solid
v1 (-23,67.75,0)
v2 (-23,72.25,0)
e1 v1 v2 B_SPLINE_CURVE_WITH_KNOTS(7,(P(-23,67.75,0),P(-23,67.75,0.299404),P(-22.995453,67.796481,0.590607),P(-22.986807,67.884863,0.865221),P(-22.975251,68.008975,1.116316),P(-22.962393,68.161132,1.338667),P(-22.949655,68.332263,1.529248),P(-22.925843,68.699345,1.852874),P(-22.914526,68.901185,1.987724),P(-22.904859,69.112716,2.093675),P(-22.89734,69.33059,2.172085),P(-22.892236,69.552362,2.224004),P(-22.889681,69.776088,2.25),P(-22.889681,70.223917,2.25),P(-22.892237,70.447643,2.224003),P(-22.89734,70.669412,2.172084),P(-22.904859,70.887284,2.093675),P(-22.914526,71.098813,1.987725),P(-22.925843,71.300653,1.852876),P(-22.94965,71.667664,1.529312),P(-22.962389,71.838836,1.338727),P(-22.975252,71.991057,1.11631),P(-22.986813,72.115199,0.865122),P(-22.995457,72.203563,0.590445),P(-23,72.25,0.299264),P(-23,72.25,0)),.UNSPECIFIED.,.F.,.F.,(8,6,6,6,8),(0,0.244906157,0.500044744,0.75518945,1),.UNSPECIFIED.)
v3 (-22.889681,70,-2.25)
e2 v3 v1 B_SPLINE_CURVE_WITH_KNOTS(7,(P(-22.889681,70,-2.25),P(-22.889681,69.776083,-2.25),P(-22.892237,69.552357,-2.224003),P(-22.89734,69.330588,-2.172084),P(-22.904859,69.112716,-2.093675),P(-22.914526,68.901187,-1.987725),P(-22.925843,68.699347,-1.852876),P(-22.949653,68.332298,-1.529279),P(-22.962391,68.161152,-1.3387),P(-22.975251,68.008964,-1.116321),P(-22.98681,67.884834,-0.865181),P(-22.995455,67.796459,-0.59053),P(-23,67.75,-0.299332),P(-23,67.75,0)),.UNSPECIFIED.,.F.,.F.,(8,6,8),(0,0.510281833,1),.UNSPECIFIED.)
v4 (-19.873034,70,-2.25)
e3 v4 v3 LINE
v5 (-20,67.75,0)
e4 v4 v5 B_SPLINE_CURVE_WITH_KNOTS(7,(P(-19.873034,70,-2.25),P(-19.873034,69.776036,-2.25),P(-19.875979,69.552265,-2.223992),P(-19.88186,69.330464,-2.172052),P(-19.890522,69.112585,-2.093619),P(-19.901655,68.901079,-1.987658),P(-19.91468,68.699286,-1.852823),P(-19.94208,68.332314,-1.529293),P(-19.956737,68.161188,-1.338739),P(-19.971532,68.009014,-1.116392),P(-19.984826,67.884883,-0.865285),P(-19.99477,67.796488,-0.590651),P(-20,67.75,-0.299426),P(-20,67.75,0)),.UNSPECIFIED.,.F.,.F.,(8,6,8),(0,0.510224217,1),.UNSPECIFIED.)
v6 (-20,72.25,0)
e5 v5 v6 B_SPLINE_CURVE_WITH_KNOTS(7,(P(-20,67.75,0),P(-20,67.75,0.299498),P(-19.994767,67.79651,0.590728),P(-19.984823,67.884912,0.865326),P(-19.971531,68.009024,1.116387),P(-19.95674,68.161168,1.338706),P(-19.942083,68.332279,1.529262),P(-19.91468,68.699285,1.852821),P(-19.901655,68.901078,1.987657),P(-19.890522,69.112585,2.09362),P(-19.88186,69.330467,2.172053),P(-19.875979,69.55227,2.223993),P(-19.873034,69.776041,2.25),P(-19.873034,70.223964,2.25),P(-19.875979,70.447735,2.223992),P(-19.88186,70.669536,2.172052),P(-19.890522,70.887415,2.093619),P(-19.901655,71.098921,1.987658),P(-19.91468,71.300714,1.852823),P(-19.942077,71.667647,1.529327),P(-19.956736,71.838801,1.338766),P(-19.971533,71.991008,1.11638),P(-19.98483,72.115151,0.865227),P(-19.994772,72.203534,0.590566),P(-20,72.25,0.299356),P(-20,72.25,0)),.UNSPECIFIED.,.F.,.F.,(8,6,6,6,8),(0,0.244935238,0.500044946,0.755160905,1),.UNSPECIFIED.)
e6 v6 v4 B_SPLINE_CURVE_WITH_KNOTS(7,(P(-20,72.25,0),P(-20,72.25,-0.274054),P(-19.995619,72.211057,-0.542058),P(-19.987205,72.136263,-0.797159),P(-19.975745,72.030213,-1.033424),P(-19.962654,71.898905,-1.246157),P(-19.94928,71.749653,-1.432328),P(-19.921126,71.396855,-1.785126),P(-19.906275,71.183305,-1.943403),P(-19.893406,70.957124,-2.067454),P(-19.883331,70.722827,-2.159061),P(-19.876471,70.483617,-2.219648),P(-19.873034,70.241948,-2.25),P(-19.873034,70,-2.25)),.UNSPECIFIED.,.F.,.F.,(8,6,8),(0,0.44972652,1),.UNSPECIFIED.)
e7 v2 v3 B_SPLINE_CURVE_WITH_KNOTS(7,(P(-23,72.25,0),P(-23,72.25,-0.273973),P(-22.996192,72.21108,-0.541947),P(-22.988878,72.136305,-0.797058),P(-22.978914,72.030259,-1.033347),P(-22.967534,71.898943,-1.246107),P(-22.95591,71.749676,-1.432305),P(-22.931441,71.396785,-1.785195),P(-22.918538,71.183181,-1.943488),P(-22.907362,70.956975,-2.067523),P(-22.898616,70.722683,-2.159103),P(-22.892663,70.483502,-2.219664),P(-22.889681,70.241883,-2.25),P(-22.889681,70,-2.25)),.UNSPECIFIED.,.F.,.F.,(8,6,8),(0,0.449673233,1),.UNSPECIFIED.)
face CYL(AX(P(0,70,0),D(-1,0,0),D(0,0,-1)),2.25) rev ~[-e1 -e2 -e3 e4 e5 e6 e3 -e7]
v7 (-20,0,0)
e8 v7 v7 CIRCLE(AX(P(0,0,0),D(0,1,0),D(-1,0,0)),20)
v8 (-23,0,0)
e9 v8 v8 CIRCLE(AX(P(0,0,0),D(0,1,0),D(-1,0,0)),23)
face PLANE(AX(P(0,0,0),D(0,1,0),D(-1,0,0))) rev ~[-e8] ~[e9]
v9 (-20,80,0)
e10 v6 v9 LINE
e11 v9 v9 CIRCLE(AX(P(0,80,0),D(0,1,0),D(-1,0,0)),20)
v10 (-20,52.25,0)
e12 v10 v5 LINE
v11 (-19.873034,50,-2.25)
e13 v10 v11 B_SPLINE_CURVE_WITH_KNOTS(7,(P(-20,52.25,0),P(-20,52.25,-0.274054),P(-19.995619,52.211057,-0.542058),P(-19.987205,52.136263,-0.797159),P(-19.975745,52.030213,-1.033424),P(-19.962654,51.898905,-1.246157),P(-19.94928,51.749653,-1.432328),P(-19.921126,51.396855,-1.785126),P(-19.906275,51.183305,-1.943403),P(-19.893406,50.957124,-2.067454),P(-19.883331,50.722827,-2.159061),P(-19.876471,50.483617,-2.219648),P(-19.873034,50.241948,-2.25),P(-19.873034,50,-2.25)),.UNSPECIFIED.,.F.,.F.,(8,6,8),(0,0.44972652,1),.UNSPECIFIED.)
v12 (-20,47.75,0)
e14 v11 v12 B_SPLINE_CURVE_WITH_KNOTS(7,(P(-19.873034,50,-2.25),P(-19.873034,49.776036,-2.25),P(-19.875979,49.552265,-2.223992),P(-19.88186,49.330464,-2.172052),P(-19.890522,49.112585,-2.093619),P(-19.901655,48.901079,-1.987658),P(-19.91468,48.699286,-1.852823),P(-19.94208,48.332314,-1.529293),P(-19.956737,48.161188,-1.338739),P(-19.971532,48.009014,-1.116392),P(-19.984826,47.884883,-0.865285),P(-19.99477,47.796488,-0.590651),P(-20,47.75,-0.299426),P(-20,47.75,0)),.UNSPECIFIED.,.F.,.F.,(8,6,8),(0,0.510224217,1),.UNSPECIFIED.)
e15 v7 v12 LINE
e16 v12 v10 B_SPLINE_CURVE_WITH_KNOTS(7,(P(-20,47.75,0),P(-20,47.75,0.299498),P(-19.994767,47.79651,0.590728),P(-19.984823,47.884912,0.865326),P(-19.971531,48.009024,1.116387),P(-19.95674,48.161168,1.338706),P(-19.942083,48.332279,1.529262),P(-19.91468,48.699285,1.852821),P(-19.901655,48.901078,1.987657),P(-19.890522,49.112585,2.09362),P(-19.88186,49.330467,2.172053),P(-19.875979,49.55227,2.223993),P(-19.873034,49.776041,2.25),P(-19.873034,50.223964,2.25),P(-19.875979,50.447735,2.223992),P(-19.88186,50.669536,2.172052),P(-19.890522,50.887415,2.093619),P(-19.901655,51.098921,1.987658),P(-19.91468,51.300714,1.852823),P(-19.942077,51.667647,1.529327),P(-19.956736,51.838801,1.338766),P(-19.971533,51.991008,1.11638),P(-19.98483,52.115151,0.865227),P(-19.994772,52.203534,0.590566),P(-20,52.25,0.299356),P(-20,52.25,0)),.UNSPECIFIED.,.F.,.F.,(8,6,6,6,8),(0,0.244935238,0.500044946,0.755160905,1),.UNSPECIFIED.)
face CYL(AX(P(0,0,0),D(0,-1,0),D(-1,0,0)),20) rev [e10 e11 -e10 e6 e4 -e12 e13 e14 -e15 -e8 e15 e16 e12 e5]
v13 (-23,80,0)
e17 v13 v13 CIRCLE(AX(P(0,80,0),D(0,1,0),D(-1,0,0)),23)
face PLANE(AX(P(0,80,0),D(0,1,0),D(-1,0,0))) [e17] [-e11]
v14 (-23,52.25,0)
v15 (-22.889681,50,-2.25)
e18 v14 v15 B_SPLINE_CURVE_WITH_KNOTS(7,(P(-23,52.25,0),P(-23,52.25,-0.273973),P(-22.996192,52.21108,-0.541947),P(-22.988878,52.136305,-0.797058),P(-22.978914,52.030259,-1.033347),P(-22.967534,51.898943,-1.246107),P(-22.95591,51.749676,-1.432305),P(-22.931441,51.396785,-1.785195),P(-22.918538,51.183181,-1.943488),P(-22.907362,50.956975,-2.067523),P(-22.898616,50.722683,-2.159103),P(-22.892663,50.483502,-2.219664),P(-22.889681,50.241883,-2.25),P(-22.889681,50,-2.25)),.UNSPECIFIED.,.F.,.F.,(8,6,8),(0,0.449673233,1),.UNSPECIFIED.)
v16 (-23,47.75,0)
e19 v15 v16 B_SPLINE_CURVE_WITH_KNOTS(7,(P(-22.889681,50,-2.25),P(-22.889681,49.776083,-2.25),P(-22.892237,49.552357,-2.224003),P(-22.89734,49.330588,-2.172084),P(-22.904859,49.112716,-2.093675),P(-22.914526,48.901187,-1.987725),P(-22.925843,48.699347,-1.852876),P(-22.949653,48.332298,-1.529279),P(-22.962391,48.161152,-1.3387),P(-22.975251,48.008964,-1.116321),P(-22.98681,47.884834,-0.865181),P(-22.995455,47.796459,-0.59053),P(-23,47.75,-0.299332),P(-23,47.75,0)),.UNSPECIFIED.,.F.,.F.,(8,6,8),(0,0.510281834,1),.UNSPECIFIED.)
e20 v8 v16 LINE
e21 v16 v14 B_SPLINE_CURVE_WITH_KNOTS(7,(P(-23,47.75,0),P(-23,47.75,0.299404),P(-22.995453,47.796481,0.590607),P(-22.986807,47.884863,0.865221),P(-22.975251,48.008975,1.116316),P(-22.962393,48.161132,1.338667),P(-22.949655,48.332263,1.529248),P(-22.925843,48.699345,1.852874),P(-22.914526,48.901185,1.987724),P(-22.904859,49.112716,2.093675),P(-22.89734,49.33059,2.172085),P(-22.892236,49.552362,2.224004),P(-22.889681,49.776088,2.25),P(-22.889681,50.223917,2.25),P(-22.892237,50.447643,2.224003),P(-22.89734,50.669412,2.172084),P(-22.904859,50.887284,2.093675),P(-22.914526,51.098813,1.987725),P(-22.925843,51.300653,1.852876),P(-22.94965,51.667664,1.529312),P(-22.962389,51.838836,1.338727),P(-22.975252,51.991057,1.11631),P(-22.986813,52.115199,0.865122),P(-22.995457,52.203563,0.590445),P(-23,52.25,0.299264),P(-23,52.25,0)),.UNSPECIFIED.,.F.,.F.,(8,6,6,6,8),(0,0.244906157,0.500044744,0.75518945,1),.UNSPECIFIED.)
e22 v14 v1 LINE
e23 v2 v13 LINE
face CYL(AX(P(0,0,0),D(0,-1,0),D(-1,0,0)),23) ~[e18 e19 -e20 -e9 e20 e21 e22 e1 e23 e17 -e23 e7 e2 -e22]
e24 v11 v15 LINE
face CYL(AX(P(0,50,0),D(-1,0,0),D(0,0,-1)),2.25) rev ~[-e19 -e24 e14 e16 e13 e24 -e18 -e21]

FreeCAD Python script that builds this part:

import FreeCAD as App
import Part
import Sketcher

doc = App.newDocument("Part")
body = doc.addObject("PartDesign::Body", "Body")

# Sketch on XZ plane
sketch1 = doc.addObject("Sketcher::SketchObject", "Sketch")
body.addObject(sketch1)
sketch1.AttachmentSupport = (doc.XZ_Plane, [""])
sketch1.MapMode = "FlatFace"
sketch1.addGeometry(Part.Circle(App.Vector(0, 0, 0), App.Vector(0, 0, 1), 23), False)
sketch1.addGeometry(Part.Circle(App.Vector(0, 0, 0), App.Vector(0, 0, 1), 20), False)
sketch1.addConstraint(Sketcher.Constraint("Coincident", 0, 3, -1, 1))
sketch1.addConstraint(Sketcher.Constraint("Coincident", 1, 3, -1, 1))
sketch1.addConstraint(Sketcher.Constraint("Diameter", 1, 40.0))
sketch1.addConstraint(Sketcher.Constraint("Diameter", 0, 46.0))
pad1 = doc.addObject("PartDesign::Pad", "Pad")
body.addObject(pad1)
pad1.Profile = sketch1
pad1.Length = 80
pad1.Reversed = True

# Sketch on YZ plane
sketch2 = doc.addObject("Sketcher::SketchObject", "Sketch001")
body.addObject(sketch2)
sketch2.AttachmentSupport = (doc.YZ_Plane, [""])
sketch2.MapMode = "FlatFace"
sketch2.addGeometry(Part.Circle(App.Vector(70, 0, 0), App.Vector(0, 0, 1), 2.2), False)
sketch2.addGeometry(Part.Circle(App.Vector(50, 0, 0), App.Vector(0, 0, 1), 2.2), False)
sketch2.addConstraint(Sketcher.Constraint("Equal", 0, 1))
sketch2.addConstraint(Sketcher.Constraint("PointOnObject", 0, 3, -1))
sketch2.addConstraint(Sketcher.Constraint("PointOnObject", 1, 3, -1))
sketch2.addConstraint(Sketcher.Constraint("Diameter", 0, 4.5))
sketch2.addConstraint(Sketcher.Constraint("DistanceX", -1, 1, 0, 3, 70.0))
sketch2.addConstraint(Sketcher.Constraint("DistanceX", -1, 1, 1, 3, 50.0))
doc.recompute()
hole = doc.addObject("PartDesign::Hole", "Hole")
body.addObject(hole)
hole.Profile = sketch2
hole.ThreadType = "None"
hole.Diameter = 4.5
hole.DepthType = "ThroughAll"

doc.recompute()
